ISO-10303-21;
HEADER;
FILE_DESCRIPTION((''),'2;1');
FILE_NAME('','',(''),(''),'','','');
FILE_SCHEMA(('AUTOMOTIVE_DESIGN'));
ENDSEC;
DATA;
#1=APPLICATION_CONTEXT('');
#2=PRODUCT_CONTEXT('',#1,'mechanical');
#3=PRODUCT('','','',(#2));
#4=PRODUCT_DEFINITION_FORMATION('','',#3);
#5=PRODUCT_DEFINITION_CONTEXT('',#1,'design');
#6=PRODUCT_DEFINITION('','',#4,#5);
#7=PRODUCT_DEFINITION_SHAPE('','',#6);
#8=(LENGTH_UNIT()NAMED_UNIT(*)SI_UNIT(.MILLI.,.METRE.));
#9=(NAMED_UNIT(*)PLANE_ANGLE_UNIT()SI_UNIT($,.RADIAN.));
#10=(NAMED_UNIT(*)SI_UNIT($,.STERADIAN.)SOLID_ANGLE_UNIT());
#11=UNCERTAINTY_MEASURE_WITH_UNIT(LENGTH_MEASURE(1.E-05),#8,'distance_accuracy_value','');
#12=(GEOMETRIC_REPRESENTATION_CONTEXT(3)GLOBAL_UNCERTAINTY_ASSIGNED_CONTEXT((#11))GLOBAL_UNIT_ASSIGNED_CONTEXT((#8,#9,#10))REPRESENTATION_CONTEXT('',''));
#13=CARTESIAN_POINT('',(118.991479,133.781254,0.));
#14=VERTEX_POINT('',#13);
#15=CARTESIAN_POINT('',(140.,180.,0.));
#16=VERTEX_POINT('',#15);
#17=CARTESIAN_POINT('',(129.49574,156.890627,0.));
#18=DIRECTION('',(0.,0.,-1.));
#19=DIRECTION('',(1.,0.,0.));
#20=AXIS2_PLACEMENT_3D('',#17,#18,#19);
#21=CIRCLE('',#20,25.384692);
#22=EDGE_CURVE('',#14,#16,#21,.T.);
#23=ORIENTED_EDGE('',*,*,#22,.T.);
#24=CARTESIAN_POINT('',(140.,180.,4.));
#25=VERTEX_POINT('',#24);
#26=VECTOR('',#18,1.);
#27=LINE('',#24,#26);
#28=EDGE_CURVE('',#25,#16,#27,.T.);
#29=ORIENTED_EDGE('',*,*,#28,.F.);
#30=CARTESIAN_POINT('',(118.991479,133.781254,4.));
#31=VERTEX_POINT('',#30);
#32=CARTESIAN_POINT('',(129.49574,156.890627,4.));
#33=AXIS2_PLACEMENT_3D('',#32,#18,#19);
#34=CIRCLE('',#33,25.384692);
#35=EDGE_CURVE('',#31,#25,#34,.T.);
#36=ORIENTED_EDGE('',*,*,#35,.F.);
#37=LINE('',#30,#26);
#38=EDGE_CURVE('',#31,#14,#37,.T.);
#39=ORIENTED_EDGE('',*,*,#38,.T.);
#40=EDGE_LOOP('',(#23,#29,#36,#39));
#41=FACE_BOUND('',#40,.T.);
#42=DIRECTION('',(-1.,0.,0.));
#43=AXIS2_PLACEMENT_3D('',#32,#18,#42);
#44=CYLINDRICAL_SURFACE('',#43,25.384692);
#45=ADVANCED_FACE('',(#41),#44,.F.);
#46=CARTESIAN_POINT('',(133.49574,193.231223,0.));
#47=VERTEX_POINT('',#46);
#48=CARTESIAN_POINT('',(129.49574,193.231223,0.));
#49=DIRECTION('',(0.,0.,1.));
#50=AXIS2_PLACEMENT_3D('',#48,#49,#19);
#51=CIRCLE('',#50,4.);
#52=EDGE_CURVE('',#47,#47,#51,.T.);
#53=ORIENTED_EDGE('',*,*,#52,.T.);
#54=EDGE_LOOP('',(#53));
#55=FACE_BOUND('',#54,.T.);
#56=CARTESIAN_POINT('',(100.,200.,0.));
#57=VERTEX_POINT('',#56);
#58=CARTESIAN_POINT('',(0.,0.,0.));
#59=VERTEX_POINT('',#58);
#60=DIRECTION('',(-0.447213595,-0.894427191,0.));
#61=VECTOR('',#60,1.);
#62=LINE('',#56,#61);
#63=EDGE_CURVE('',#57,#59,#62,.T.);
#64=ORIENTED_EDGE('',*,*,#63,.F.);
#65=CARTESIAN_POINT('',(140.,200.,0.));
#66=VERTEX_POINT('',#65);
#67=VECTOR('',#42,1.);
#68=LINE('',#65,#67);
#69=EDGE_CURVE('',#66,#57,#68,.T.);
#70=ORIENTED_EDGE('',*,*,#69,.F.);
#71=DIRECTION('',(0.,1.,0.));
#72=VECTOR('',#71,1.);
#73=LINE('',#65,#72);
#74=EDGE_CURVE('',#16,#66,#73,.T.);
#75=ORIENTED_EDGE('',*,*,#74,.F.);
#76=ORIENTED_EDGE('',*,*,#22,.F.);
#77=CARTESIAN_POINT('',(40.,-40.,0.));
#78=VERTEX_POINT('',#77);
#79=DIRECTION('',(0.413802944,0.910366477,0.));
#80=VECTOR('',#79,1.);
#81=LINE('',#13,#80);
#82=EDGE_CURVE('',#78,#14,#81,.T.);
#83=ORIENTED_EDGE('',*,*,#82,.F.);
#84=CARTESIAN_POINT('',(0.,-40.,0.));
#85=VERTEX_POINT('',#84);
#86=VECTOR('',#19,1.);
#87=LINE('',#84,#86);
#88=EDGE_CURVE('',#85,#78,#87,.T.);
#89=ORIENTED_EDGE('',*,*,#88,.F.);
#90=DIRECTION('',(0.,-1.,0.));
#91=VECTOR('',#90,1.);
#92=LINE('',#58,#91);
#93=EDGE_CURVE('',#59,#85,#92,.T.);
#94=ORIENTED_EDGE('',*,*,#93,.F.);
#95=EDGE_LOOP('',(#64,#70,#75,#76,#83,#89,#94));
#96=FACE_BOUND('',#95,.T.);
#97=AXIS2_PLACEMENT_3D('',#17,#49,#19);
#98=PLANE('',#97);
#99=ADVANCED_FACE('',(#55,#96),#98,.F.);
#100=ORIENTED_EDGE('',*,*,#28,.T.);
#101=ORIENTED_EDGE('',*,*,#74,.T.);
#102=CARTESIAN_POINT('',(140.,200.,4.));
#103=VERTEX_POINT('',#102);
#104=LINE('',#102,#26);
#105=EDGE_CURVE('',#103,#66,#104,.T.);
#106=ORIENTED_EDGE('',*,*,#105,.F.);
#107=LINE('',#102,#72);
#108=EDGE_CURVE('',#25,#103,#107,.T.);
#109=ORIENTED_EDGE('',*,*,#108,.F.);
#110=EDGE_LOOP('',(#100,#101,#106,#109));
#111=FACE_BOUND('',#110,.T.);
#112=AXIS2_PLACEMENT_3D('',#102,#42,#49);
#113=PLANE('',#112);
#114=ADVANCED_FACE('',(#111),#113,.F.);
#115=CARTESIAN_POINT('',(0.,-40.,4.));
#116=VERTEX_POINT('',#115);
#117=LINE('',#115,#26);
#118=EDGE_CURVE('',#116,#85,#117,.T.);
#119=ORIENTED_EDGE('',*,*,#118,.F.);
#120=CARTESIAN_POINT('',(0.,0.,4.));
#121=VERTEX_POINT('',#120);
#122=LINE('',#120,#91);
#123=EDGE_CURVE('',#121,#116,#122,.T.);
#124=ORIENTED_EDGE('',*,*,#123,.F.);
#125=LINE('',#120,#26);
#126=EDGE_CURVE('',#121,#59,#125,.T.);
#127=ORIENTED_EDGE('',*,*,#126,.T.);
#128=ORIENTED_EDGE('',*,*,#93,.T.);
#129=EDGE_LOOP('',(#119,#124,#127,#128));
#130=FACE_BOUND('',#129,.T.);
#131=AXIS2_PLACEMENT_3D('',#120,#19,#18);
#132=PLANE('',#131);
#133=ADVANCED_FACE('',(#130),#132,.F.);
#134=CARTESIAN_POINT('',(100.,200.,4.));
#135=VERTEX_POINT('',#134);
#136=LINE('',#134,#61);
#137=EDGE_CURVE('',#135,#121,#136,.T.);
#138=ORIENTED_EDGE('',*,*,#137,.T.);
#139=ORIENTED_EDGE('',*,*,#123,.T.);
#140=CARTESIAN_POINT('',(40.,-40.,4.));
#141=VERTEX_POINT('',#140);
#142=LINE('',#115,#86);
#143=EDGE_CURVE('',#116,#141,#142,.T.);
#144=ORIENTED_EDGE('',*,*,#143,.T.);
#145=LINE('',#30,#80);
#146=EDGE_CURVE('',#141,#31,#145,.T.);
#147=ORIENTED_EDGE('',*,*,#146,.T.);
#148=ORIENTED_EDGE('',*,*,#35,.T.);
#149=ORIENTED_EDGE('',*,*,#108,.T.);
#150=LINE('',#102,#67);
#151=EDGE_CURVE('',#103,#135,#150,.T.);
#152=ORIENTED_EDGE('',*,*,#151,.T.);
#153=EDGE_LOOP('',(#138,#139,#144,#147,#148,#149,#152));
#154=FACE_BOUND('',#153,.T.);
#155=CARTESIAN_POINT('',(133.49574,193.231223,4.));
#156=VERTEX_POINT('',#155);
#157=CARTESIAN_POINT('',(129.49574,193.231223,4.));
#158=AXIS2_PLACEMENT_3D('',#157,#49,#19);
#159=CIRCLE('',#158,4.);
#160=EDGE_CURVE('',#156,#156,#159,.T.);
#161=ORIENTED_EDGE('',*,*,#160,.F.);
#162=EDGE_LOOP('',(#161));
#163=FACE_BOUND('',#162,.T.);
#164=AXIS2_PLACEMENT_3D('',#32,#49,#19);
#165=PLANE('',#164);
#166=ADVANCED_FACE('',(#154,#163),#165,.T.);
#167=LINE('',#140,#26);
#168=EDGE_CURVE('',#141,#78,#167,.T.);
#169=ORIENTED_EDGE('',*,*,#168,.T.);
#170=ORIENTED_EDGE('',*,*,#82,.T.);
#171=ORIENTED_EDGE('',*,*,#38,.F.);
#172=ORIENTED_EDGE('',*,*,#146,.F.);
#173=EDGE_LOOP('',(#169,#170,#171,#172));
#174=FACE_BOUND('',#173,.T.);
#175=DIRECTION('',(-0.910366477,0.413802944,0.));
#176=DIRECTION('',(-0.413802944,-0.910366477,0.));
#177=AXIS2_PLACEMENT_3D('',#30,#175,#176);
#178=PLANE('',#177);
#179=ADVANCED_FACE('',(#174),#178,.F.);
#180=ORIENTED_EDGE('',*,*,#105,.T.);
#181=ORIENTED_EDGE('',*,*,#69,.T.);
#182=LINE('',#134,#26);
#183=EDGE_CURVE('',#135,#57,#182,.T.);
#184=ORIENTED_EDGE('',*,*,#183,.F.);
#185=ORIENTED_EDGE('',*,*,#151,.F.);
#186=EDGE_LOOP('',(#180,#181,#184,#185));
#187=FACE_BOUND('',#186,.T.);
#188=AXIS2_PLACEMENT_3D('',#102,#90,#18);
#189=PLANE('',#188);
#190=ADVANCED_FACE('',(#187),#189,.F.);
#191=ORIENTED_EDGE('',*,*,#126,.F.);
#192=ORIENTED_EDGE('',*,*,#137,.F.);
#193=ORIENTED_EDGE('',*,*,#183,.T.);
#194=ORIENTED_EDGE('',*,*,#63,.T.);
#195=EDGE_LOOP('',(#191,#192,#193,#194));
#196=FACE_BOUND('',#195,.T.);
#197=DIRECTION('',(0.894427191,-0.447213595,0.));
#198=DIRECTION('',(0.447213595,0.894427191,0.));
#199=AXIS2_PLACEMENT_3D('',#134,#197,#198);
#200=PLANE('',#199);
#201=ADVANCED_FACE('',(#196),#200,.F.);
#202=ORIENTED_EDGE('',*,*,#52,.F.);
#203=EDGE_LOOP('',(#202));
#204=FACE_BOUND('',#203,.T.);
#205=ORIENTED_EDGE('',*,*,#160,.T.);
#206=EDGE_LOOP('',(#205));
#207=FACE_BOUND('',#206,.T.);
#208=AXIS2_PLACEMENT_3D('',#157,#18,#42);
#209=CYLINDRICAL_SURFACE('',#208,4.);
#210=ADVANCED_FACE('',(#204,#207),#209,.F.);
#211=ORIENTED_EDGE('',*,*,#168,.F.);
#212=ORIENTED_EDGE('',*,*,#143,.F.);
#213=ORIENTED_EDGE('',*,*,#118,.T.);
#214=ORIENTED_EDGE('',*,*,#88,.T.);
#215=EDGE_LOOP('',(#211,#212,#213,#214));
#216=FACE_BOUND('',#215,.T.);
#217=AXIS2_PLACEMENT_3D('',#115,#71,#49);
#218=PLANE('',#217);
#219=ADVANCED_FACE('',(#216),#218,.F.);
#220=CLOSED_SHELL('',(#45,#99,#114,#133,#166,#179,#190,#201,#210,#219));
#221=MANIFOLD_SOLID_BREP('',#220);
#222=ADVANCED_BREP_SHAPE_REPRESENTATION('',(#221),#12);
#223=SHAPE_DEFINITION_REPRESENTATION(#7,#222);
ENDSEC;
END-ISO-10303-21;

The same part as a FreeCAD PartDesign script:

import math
import FreeCAD as App
import Part
import Sketcher
Q = App.Units.Quantity

doc = App.newDocument("Part")
body = doc.addObject("PartDesign::Body", "Body")

sketch1 = body.newObject("Sketcher::SketchObject", "Sketch")
sketch1.AttachmentSupport = (doc.getObject("XY_Plane"), [""])
sketch1.MapMode = "FlatFace"
sketch1.addGeometry([
    Part.LineSegment(App.Vector(0, 0, 0), App.Vector(0, -40, 0)),
    Part.LineSegment(App.Vector(0, -40, 0), App.Vector(40, -40, 0)),
    Part.LineSegment(App.Vector(40, -40, 0), App.Vector(119, 133.8, 0)),
    Part.ArcOfCircle(Part.Circle(App.Vector(129.5, 156.9, 0), App.Vector(0, 0, 1), 25.4), math.radians(66), math.radians(246)),
    Part.LineSegment(App.Vector(140, 180, 0), App.Vector(140, 200, 0)),
    Part.LineSegment(App.Vector(140, 200, 0), App.Vector(100, 200, 0)),
    Part.LineSegment(App.Vector(100, 200, 0), App.Vector(0, 0, 0)),
    Part.Circle(App.Vector(129.5, 193.2, 0), App.Vector(0, 0, 1), 4),
], False)
sketch1.addConstraint([
    Sketcher.Constraint("Coincident", 0, 2, 1, 1),
    Sketcher.Constraint("Coincident", 1, 2, 2, 1),
    Sketcher.Constraint("Coincident", 2, 2, 3, 2),
    Sketcher.Constraint("Coincident", 3, 1, 4, 1),
    Sketcher.Constraint("Coincident", 4, 2, 5, 1),
    Sketcher.Constraint("Coincident", 5, 2, 6, 1),
    Sketcher.Constraint("Coincident", 6, 2, 0, 1),
    Sketcher.Constraint("Vertical", 0),
    Sketcher.Constraint("Horizontal", 1),
    Sketcher.Constraint("Vertical", 4),
    Sketcher.Constraint("Horizontal", 5),
    Sketcher.Constraint("Coincident", 6, 2, -1, 1),
    Sketcher.Constraint("Vertical", 3, 3, 7, 3),
    Sketcher.Constraint("Equal", 1, 5),
    Sketcher.Constraint("Equal", 5, 0),
    Sketcher.Constraint("Diameter", 7, Q("8 mm")),
    Sketcher.Constraint("DistanceX", 1, 1, 1, 2, Q("40 mm")),
    Sketcher.Constraint("DistanceY", 4, 1, 4, 2, Q("20 mm")),
    Sketcher.Constraint("DistanceX", -1, 1, 3, 1, Q("140 mm")),
    Sketcher.Constraint("DistanceY", -1, 1, 3, 1, Q("180 mm")),
    Sketcher.Constraint("Radius", 3, Q("25.384692 mm")),
    Sketcher.Constraint("DistanceX", -1, 1, 3, 3, Q("129.49574 mm")),
    Sketcher.Constraint("DistanceX", -1, 1, 2, 2, Q("118.991479 mm")),
    Sketcher.Constraint("DistanceY", 2, 2, 7, 3, Q("59.449969 mm")),
])
pad1 = body.newObject("PartDesign::Pad", "Pad")
pad1.Profile = sketch1
pad1.Length = 4

doc.recompute()
